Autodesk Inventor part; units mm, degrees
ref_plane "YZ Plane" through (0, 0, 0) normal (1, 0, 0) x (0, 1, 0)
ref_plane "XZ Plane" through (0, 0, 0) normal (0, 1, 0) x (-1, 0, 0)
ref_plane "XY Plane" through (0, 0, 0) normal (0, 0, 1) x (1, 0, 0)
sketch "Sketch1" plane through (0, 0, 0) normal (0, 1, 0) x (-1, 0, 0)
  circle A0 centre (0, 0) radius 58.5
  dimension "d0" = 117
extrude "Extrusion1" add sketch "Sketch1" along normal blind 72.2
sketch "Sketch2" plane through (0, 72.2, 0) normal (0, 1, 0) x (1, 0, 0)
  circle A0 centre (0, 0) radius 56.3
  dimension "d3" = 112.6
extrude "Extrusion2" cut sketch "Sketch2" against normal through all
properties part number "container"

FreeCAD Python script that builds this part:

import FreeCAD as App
import Part
import Sketcher
from FreeCAD import Vector

doc = App.newDocument("Part")
params = doc.addObject("Spreadsheet::Sheet", "Params")
for row, (alias, value) in enumerate([
    ("sketch1_diameter", "117 mm"),
    ("pad1_length", "72.2 mm"),
    ("sketch2_diameter", "112.6 mm"),
], start=1):
    params.set(f"A{row}", alias)
    params.set(f"B{row}", "=" + value)
    params.setAlias(f"B{row}", alias)

body = doc.addObject("PartDesign::Body", "Body")

# Sketch on XZ plane
sketch1 = body.newObject("Sketcher::SketchObject", "Sketch")
sketch1.AttachmentSupport = (doc.getObject("XZ_Plane"), [""])
sketch1.MapMode = "FlatFace"
sketch1.addGeometry(Part.Circle(Vector(0, 0, 0), Vector(0, 0, 1), 58), False)
sketch1.addConstraint([
    Sketcher.Constraint("Coincident", 0, 3, -1, 1),
    Sketcher.Constraint("Diameter", 0, 117.0),
])
sketch1.setExpression("Constraints[1]", "Params.sketch1_diameter")
pad1 = body.newObject("PartDesign::Pad", "Pad")
pad1.Profile = sketch1
pad1.setExpression("Length", "Params.pad1_length")
pad1.Reversed = True

# Sketch on XZ plane
sketch2 = body.newObject("Sketcher::SketchObject", "Sketch001")
sketch2.AttachmentSupport = (doc.getObject("XZ_Plane"), [""])
sketch2.MapMode = "FlatFace"
sketch2.AttachmentOffset = App.Placement(Vector(0, 0, -72.2), App.Rotation())
sketch2.addGeometry(Part.Circle(Vector(0, 0, 0), Vector(0, 0, 1), 56), False)
sketch2.addConstraint([
    Sketcher.Constraint("Coincident", 0, 3, -1, 1),
    Sketcher.Constraint("Diameter", 0, 112.6),
])
sketch2.setExpression("Constraints[1]", "Params.sketch2_diameter")
pocket1 = body.newObject("PartDesign::Pocket", "Pocket")
pocket1.Profile = sketch2
pocket1.Type = "ThroughAll"
pocket1.Reversed = True

doc.recompute()
